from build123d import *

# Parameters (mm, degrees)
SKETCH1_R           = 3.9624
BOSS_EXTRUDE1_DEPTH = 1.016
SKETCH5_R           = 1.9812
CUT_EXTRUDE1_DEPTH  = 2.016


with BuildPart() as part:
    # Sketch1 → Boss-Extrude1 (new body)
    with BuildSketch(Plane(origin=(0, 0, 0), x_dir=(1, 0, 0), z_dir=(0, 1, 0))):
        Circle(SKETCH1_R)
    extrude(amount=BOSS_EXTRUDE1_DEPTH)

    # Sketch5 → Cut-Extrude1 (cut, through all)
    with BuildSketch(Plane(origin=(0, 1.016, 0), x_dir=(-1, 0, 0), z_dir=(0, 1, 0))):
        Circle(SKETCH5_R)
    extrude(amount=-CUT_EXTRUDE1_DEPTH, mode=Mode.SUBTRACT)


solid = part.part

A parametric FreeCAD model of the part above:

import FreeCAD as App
import Part
import Sketcher
from FreeCAD import Vector
Q = App.Units.Quantity

doc = App.newDocument("Part")
body = doc.addObject("PartDesign::Body", "Body")

# Sketch on XZ plane
sketch1 = body.newObject("Sketcher::SketchObject", "Sketch")
sketch1.AttachmentSupport = (doc.getObject("XZ_Plane"), [""])
sketch1.MapMode = "FlatFace"
sketch1.addGeometry(Part.Circle(Vector(0, 0, 0), Vector(0, 0, 1), 4), False)
sketch1.addConstraint([
    Sketcher.Constraint("Coincident", 0, 3, -1, 1),
    Sketcher.Constraint("Diameter", 0, Q("0.312 in")),
])
pad1 = body.newObject("PartDesign::Pad", "Pad")
pad1.Profile = sketch1
pad1.Length = Q("0.04 in")
pad1.Reversed = True

# Sketch on XZ plane
sketch2 = body.newObject("Sketcher::SketchObject", "Sketch001")
sketch2.AttachmentSupport = (doc.getObject("XZ_Plane"), [""])
sketch2.MapMode = "FlatFace"
sketch2.AttachmentOffset = App.Placement(Vector(0, 0, -0.04 * 25.4), App.Rotation())
sketch2.addGeometry(Part.Circle(Vector(0, 0, 0), Vector(0, 0, 1), 2), False)
sketch2.addConstraint([
    Sketcher.Constraint("Coincident", 0, 3, -1, 1),
    Sketcher.Constraint("Diameter", 0, Q("0.156 in")),
])
pocket1 = body.newObject("PartDesign::Pocket", "Pocket")
pocket1.Profile = sketch2
pocket1.Type = "ThroughAll"
pocket1.Reversed = True

doc.recompute()
